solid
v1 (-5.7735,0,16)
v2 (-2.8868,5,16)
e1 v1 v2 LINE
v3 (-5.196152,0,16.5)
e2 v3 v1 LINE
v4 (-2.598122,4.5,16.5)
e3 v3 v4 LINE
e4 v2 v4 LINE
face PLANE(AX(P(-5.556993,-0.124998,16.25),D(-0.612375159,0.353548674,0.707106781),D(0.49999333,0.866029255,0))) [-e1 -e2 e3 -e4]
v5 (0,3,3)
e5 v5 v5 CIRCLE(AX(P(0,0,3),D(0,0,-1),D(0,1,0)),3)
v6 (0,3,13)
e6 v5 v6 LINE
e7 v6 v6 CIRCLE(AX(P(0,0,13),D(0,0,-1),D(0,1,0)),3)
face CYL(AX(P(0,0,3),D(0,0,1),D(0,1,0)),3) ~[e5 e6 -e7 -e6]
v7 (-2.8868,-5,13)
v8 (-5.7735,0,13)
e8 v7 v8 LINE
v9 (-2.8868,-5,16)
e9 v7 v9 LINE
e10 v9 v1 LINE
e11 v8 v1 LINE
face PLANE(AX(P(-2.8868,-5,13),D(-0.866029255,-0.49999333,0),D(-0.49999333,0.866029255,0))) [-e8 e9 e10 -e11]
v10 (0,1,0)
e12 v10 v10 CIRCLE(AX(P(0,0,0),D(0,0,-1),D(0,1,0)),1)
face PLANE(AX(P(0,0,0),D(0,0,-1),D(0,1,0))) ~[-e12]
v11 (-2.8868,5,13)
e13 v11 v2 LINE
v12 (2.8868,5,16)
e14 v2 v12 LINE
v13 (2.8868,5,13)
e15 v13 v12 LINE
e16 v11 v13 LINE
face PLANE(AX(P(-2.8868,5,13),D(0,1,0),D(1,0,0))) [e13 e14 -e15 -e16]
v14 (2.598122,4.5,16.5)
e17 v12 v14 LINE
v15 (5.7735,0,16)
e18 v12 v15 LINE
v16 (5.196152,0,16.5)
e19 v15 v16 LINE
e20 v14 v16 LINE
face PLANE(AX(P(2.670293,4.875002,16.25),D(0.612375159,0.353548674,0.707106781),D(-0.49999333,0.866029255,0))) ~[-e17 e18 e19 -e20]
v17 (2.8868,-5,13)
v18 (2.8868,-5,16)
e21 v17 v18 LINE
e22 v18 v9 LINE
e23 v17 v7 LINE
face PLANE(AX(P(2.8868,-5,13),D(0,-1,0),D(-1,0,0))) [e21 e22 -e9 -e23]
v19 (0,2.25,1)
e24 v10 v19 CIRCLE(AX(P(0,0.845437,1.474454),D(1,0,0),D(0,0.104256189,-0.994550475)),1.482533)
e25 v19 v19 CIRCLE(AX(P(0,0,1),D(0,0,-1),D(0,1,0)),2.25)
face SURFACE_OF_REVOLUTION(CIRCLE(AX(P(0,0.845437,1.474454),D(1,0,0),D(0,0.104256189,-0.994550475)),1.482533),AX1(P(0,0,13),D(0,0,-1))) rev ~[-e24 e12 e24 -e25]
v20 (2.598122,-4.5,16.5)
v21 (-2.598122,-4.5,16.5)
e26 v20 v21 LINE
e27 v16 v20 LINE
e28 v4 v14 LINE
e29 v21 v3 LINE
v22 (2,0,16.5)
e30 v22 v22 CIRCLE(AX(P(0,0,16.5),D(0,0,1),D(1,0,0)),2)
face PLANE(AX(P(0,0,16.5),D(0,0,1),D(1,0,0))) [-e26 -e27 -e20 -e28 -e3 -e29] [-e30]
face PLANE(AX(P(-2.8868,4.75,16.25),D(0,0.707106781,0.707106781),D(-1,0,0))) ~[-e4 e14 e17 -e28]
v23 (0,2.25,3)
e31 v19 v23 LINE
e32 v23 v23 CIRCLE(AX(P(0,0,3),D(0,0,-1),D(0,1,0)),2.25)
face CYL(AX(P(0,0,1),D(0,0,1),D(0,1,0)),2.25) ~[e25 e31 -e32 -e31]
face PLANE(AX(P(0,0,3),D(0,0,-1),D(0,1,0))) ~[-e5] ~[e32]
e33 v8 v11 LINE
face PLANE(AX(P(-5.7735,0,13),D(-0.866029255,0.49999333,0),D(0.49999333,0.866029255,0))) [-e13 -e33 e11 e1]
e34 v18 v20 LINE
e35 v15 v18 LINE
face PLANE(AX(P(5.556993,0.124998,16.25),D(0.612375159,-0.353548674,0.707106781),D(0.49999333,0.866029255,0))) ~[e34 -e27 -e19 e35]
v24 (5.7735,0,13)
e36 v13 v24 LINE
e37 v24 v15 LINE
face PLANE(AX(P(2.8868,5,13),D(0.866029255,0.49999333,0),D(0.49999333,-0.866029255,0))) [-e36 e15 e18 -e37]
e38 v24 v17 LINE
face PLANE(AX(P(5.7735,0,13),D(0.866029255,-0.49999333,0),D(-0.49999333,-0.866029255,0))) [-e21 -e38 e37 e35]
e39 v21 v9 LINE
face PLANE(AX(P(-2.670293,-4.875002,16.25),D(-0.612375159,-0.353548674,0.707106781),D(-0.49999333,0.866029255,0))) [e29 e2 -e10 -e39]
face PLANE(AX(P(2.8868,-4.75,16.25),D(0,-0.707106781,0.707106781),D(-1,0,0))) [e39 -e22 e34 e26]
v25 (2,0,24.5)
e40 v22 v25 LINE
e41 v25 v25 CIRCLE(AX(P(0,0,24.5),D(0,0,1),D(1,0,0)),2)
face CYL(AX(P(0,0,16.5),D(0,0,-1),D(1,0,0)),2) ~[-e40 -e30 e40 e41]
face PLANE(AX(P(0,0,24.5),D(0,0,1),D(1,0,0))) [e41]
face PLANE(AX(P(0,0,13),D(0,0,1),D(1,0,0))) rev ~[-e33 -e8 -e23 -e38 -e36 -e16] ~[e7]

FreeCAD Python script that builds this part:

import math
import FreeCAD as App
import Part
import Sketcher
from FreeCAD import Vector
Q = App.Units.Quantity


def edges_at(feature, points):
    """Names of the edges that pass closest to the given points."""
    edges = feature.Shape.Edges
    near = lambda p: min(range(len(edges)), key=lambda i: edges[i].distToShape(Part.Vertex(*p))[0])
    return sorted({f"Edge{near(p) + 1}" for p in points})


def add_polygon(sketch, points):
    """Adds a closed chain of lines whose ends are joined by coincident constraints."""
    first, n = sketch.GeometryCount, len(points)
    for a, b in zip(points, points[1:] + points[:1]):
        sketch.addGeometry(Part.LineSegment(App.Vector(*a, 0), App.Vector(*b, 0)), False)
    for i in range(n):
        sketch.addConstraint(Sketcher.Constraint("Coincident", first + i, 2, first + (i + 1) % n, 1))

doc = App.newDocument("Part")
body = doc.addObject("PartDesign::Body", "Body")

sketch1 = doc.addObject("Sketcher::SketchObject", "Sketch")
body.addObject(sketch1)
sketch1.AttachmentSupport = (doc.YZ_Plane, [""])
sketch1.MapMode = "FlatFace"
sketch1.addGeometry(Part.LineSegment(Vector(0, 13, 0), Vector(0, 0, 0)), False)
sketch1.addGeometry(Part.LineSegment(Vector(0, 0, 0), Vector(1, 0, 0)), False)
sketch1.addGeometry(Part.ArcOfCircle(Part.Circle(Vector(0.8, 1.5, 0), Vector(0, 0, 1), 1.5), math.radians(-84), math.radians(-19)), False)
sketch1.addGeometry(Part.LineSegment(Vector(2.2, 1, 0), Vector(2.2, 3, 0)), False)
sketch1.addGeometry(Part.LineSegment(Vector(2.2, 3, 0), Vector(3, 3, 0)), False)
sketch1.addGeometry(Part.LineSegment(Vector(3, 3, 0), Vector(3, 13, 0)), False)
sketch1.addGeometry(Part.LineSegment(Vector(3, 13, 0), Vector(0, 13, 0)), False)
sketch1.addConstraint(Sketcher.Constraint("Coincident", 0, 2, 1, 1))
sketch1.addConstraint(Sketcher.Constraint("Coincident", 1, 2, 2, 1))
sketch1.addConstraint(Sketcher.Constraint("Coincident", 2, 2, 3, 1))
sketch1.addConstraint(Sketcher.Constraint("Coincident", 3, 2, 4, 1))
sketch1.addConstraint(Sketcher.Constraint("Coincident", 4, 2, 5, 1))
sketch1.addConstraint(Sketcher.Constraint("Coincident", 5, 2, 6, 1))
sketch1.addConstraint(Sketcher.Constraint("Coincident", 6, 2, 0, 1))
sketch1.addConstraint(Sketcher.Constraint("Vertical", 0))
sketch1.addConstraint(Sketcher.Constraint("Horizontal", 1))
sketch1.addConstraint(Sketcher.Constraint("Vertical", 3))
sketch1.addConstraint(Sketcher.Constraint("Horizontal", 4))
sketch1.addConstraint(Sketcher.Constraint("Vertical", 5))
sketch1.addConstraint(Sketcher.Constraint("Horizontal", 6))
sketch1.addConstraint(Sketcher.Constraint("Coincident", 0, 2, -1, 1))
sketch1.addConstraint(Sketcher.Constraint("DistanceX", 1, 1, 1, 2, 1.0))
sketch1.addConstraint(Sketcher.Constraint("DistanceX", 6, 2, 6, 1, 3.0))
sketch1.addConstraint(Sketcher.Constraint("DistanceY", 3, 1, 3, 2, 2.0))
sketch1.addConstraint(Sketcher.Constraint("DistanceY", 5, 1, 5, 2, 10.0))
sketch1.addConstraint(Sketcher.Constraint("DistanceY", -1, 1, 2, 2, 1.0))
sketch1.addConstraint(Sketcher.Constraint("DistanceX", 4, 1, 4, 2, 0.75))
sketch1.addConstraint(Sketcher.Constraint("Radius", 2, 1.4824))
revolution = doc.addObject("PartDesign::Revolution", "Revolution")
body.addObject(revolution)
revolution.Profile = sketch1
revolution.ReferenceAxis = (sketch1, ["V_Axis"])
revolution.Angle = 360

sketch2 = doc.addObject("Sketcher::SketchObject", "Sketch001")
body.addObject(sketch2)
sketch2.AttachmentSupport = (doc.XY_Plane, [""])
sketch2.MapMode = "FlatFace"
sketch2.AttachmentOffset = App.Placement(Vector(0, 0, 13), App.Rotation())
add_polygon(sketch2, [(6, 0), (3, 5), (-3, 5), (-6, 0), (-3, -5), (3, -5)])
sketch2.addConstraint(Sketcher.Constraint("Horizontal", 1))
sketch2.addConstraint(Sketcher.Constraint("Horizontal", 4))
sketch2.addConstraint(Sketcher.Constraint("Symmetric", 0, 2, 3, 2, -1, 1))
sketch2.addConstraint(Sketcher.Constraint("Symmetric", 2, 2, 5, 2, -1, 1))
sketch2.addConstraint(Sketcher.Constraint("PointOnObject", 2, 2, -1))
sketch2.addConstraint(Sketcher.Constraint("Parallel", 2, 5))
sketch2.addConstraint(Sketcher.Constraint("Vertical", 1, 2, 3, 2))
sketch2.addConstraint(Sketcher.Constraint("DistanceY", 3, 2, 1, 2, 10.0))
sketch2.addConstraint(Sketcher.Constraint("Angle", 0, Q("119.9996 deg")))
sketch2.addConstraint(Sketcher.Constraint("DistanceX", 1, 2, 1, 1, 5.7736))
pad1 = doc.addObject("PartDesign::Pad", "Pad")
body.addObject(pad1)
pad1.Profile = sketch2
pad1.Length = 3.5
doc.recompute()

chamfer = doc.addObject("PartDesign::Chamfer", "Chamfer")
body.addObject(chamfer)
chamfer.Base = (pad1, edges_at(pad1, [
    (0, 5, 16.5),
    (4.33, 2.5, 16.5),
    (4.33, -2.5, 16.5),
    (0, -5, 16.5),
    (-4.33, -2.5, 16.5),
    (-4.33, 2.5, 16.5),
]))
chamfer.Size = 0.5

sketch3 = doc.addObject("Sketcher::SketchObject", "Sketch002")
body.addObject(sketch3)
sketch3.AttachmentSupport = (doc.XY_Plane, [""])
sketch3.MapMode = "FlatFace"
sketch3.AttachmentOffset = App.Placement(Vector(0, 0, 16.5), App.Rotation())
sketch3.addGeometry(Part.Circle(Vector(0, 0, 0), Vector(0, 0, 1), 2), False)
sketch3.addConstraint(Sketcher.Constraint("Coincident", 0, 3, -1, 1))
sketch3.addConstraint(Sketcher.Constraint("Diameter", 0, 4.0))
pad2 = doc.addObject("PartDesign::Pad", "Pad001")
body.addObject(pad2)
pad2.Profile = sketch3
pad2.Length = 8

doc.recompute()
